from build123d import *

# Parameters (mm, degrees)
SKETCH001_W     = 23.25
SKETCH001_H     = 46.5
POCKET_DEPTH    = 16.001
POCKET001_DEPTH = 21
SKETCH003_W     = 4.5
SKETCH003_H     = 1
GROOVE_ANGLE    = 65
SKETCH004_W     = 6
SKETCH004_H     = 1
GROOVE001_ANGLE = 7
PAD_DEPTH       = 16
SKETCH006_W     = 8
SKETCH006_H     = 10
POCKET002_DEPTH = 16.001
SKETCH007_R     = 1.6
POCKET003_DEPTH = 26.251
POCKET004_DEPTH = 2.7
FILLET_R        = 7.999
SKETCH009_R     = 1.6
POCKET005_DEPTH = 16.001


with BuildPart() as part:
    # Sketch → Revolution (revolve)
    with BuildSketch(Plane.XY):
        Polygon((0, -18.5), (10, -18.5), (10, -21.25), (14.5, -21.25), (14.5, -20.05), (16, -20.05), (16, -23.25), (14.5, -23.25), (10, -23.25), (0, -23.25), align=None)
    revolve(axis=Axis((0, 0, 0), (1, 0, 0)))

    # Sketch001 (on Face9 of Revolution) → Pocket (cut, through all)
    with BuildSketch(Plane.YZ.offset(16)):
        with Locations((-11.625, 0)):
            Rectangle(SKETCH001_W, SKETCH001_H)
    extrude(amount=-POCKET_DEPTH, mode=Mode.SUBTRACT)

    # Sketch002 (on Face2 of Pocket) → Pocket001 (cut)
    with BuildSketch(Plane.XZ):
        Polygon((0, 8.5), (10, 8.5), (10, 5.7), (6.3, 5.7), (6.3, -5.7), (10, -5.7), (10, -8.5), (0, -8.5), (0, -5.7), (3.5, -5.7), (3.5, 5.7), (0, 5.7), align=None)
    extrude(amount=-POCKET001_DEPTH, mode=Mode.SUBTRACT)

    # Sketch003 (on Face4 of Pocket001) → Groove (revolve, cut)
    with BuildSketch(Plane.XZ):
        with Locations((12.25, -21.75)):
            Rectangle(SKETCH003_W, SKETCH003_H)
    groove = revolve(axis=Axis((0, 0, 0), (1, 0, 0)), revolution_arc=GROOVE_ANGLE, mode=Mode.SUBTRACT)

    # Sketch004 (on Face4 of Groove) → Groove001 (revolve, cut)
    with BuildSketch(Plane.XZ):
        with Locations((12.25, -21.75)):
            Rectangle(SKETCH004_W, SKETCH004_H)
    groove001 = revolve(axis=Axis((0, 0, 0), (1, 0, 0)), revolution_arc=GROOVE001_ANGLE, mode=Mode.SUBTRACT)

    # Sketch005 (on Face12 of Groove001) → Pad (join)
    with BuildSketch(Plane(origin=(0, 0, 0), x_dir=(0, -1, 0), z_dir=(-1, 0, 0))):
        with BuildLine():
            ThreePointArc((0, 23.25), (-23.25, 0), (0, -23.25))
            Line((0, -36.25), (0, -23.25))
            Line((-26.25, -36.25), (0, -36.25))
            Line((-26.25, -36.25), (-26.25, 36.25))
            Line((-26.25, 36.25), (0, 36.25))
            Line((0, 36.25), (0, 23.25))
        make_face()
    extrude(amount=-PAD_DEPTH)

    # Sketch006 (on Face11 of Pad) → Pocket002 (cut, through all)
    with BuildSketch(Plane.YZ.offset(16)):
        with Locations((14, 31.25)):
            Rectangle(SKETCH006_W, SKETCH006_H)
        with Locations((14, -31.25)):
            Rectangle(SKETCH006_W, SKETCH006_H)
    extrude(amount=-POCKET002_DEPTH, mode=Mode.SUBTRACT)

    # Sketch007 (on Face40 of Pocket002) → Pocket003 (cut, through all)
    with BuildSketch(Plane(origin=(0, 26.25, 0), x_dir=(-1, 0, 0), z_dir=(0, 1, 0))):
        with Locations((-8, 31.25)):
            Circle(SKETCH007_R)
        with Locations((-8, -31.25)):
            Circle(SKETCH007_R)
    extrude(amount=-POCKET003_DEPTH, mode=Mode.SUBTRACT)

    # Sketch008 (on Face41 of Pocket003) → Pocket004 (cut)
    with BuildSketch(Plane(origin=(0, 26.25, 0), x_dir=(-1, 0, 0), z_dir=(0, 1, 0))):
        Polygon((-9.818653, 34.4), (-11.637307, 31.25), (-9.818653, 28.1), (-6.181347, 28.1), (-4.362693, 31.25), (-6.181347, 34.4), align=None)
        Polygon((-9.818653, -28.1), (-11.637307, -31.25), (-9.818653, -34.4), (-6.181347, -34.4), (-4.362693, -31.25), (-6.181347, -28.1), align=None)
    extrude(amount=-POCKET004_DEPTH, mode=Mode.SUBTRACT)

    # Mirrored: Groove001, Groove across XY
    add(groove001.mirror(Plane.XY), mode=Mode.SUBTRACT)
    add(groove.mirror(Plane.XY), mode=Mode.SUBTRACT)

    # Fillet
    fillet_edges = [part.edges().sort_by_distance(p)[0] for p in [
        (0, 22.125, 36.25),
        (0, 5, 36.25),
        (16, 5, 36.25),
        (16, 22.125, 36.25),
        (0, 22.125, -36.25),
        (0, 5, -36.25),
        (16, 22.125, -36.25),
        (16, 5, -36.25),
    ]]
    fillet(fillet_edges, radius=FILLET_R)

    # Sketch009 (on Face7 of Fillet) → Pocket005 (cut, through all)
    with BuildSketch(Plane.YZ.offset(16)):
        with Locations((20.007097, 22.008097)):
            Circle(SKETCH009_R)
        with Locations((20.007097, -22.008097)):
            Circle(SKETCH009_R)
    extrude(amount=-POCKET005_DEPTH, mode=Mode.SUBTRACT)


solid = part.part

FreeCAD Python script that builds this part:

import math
import FreeCAD as App
import Part
import Sketcher
Q = App.Units.Quantity


def edges_at(feature, points):
    """Names of the edges that pass closest to the given points."""
    edges = feature.Shape.Edges
    near = lambda p: min(range(len(edges)), key=lambda i: edges[i].distToShape(Part.Vertex(*p))[0])
    return sorted({f"Edge{near(p) + 1}" for p in points})

doc = App.newDocument("Part")
body = doc.addObject("PartDesign::Body", "Body")

sketch1 = body.newObject("Sketcher::SketchObject", "Sketch")
sketch1.AttachmentSupport = (doc.getObject("XY_Plane"), [""])
sketch1.MapMode = "FlatFace"
sketch1.addGeometry([
    Part.LineSegment(App.Vector(10, -18.5, 0), App.Vector(0, -18.5, 0)),
    Part.LineSegment(App.Vector(0, -18.5, 0), App.Vector(0, -23.2, 0)),
    Part.LineSegment(App.Vector(0, -23.2, 0), App.Vector(16, -23.2, 0)),
    Part.LineSegment(App.Vector(16, -23.2, 0), App.Vector(16, -20.1, 0)),
    Part.LineSegment(App.Vector(16, -20.1, 0), App.Vector(14.5, -20.1, 0)),
    Part.LineSegment(App.Vector(14.5, -20.1, 0), App.Vector(14.5, -21.2, 0)),
    Part.LineSegment(App.Vector(14.5, -21.2, 0), App.Vector(10, -21.2, 0)),
    Part.LineSegment(App.Vector(10, -21.2, 0), App.Vector(10, -18.5, 0)),
], False)
sketch1.addConstraint([
    Sketcher.Constraint("Coincident", 0, 2, 1, 1),
    Sketcher.Constraint("Coincident", 1, 2, 2, 1),
    Sketcher.Constraint("Coincident", 2, 2, 3, 1),
    Sketcher.Constraint("Coincident", 3, 2, 4, 1),
    Sketcher.Constraint("Coincident", 4, 2, 5, 1),
    Sketcher.Constraint("Coincident", 5, 2, 6, 1),
    Sketcher.Constraint("Coincident", 6, 2, 7, 1),
    Sketcher.Constraint("Coincident", 7, 2, 0, 1),
    Sketcher.Constraint("Horizontal", 0),
    Sketcher.Constraint("Vertical", 1),
    Sketcher.Constraint("Horizontal", 2),
    Sketcher.Constraint("Vertical", 3),
    Sketcher.Constraint("Horizontal", 4),
    Sketcher.Constraint("Vertical", 5),
    Sketcher.Constraint("Horizontal", 6),
    Sketcher.Constraint("Vertical", 7),
    Sketcher.Constraint("PointOnObject", 0, 2, -2),
    Sketcher.Constraint("DistanceX", 0, 2, 0, 1, Q("10 mm")),
    Sketcher.Constraint("DistanceX", 2, 1, 2, 2, Q("16 mm")),
    Sketcher.Constraint("DistanceX", 4, 2, 4, 1, Q("1.5 mm")),
    Sketcher.Constraint("DistanceY", 3, 1, 3, 2, Q("3.2 mm")),
    Sketcher.Constraint("DistanceY", 5, 2, 5, 1, Q("1.2 mm")),
    Sketcher.Constraint("DistanceY", 1, 2, 1, 1, Q("4.75 mm")),
    Sketcher.Constraint("DistanceY", 0, 2, -1, 1, Q("18.5 mm")),
])
revolution = body.newObject("PartDesign::Revolution", "Revolution")
revolution.Profile = sketch1
revolution.ReferenceAxis = (sketch1, ["H_Axis"])
revolution.Angle = 360

sketch2 = body.newObject("Sketcher::SketchObject", "Sketch001")
sketch2.AttachmentSupport = (doc.getObject("YZ_Plane"), [""])
sketch2.MapMode = "FlatFace"
sketch2.AttachmentOffset = App.Placement(App.Vector(0, 0, 16), App.Rotation())
sketch2.addGeometry([
    Part.LineSegment(App.Vector(-23, 23, 0), App.Vector(-23, -23, 0)),
    Part.LineSegment(App.Vector(-23, -23, 0), App.Vector(0, -23, 0)),
    Part.LineSegment(App.Vector(0, -23, 0), App.Vector(0, 23, 0)),
    Part.LineSegment(App.Vector(0, 23, 0), App.Vector(-23, 23, 0)),
], False)
sketch2.addConstraint([
    Sketcher.Constraint("Coincident", 0, 2, 1, 1),
    Sketcher.Constraint("Coincident", 1, 2, 2, 1),
    Sketcher.Constraint("Coincident", 2, 2, 3, 1),
    Sketcher.Constraint("Coincident", 3, 2, 0, 1),
    Sketcher.Constraint("Vertical", 0),
    Sketcher.Constraint("Horizontal", 1),
    Sketcher.Constraint("Vertical", 2),
    Sketcher.Constraint("Horizontal", 3),
    Sketcher.Constraint("Symmetric", 1, 2, 2, 2, -1, 1),
    Sketcher.Constraint("DistanceY", 0, 2, 0, 1, Q("46.5 mm")),
    Sketcher.Constraint("DistanceX", 1, 1, 1, 2, Q("23.25 mm")),
])
pocket1 = body.newObject("PartDesign::Pocket", "Pocket")
pocket1.Profile = sketch2
pocket1.Type = "ThroughAll"

sketch3 = body.newObject("Sketcher::SketchObject", "Sketch002")
sketch3.AttachmentSupport = (doc.getObject("XZ_Plane"), [""])
sketch3.MapMode = "FlatFace"
sketch3.addGeometry([
    Part.LineSegment(App.Vector(10, 8.5, 0), App.Vector(0, 8.5, 0)),
    Part.LineSegment(App.Vector(0, 8.5, 0), App.Vector(0, 5.7, 0)),
    Part.LineSegment(App.Vector(0, 5.7, 0), App.Vector(3.5, 5.7, 0)),
    Part.LineSegment(App.Vector(3.5, 5.7, 0), App.Vector(3.5, -5.7, 0)),
    Part.LineSegment(App.Vector(3.5, -5.7, 0), App.Vector(0, -5.7, 0)),
    Part.LineSegment(App.Vector(0, -5.7, 0), App.Vector(0, -8.5, 0)),
    Part.LineSegment(App.Vector(0, -8.5, 0), App.Vector(10, -8.5, 0)),
    Part.LineSegment(App.Vector(10, -8.5, 0), App.Vector(10, -5.7, 0)),
    Part.LineSegment(App.Vector(10, -5.7, 0), App.Vector(6.3, -5.7, 0)),
    Part.LineSegment(App.Vector(6.3, -5.7, 0), App.Vector(6.3, 5.7, 0)),
    Part.LineSegment(App.Vector(6.3, 5.7, 0), App.Vector(10, 5.7, 0)),
    Part.LineSegment(App.Vector(10, 5.7, 0), App.Vector(10, 8.5, 0)),
], False)
sketch3.addConstraint([
    Sketcher.Constraint("Coincident", 0, 2, 1, 1),
    Sketcher.Constraint("Coincident", 1, 2, 2, 1),
    Sketcher.Constraint("Coincident", 2, 2, 3, 1),
    Sketcher.Constraint("Coincident", 3, 2, 4, 1),
    Sketcher.Constraint("Coincident", 4, 2, 5, 1),
    Sketcher.Constraint("Coincident", 5, 2, 6, 1),
    Sketcher.Constraint("Coincident", 6, 2, 7, 1),
    Sketcher.Constraint("Coincident", 7, 2, 8, 1),
    Sketcher.Constraint("Coincident", 8, 2, 9, 1),
    Sketcher.Constraint("Coincident", 9, 2, 10, 1),
    Sketcher.Constraint("Coincident", 10, 2, 11, 1),
    Sketcher.Constraint("Coincident", 11, 2, 0, 1),
    Sketcher.Constraint("Horizontal", 0),
    Sketcher.Constraint("Vertical", 1),
    Sketcher.Constraint("Horizontal", 2),
    Sketcher.Constraint("Vertical", 3),
    Sketcher.Constraint("Horizontal", 4),
    Sketcher.Constraint("Vertical", 5),
    Sketcher.Constraint("Horizontal", 6),
    Sketcher.Constraint("Vertical", 7),
    Sketcher.Constraint("Horizontal", 8),
    Sketcher.Constraint("Vertical", 9),
    Sketcher.Constraint("Horizontal", 10),
    Sketcher.Constraint("Vertical", 11),
    Sketcher.Constraint("Symmetric", 1, 2, 4, 2, -1, 1),
    Sketcher.Constraint("Symmetric", 0, 2, 5, 2, -1),
    Sketcher.Constraint("Symmetric", 7, 2, 10, 2, -1),
    Sketcher.Constraint("Horizontal", 4, 2, 7, 2),
    Sketcher.Constraint("DistanceX", 0, 2, 0, 1, Q("10 mm")),
    Sketcher.Constraint("DistanceX", 2, 1, 2, 2, Q("3.5 mm")),
    Sketcher.Constraint("DistanceX", 8, 2, 8, 1, Q("3.7 mm")),
    Sketcher.Constraint("DistanceY", 1, 2, 1, 1, Q("2.8 mm")),
    Sketcher.Constraint("DistanceY", 3, 2, 3, 1, Q("11.4 mm")),
])
pocket2 = body.newObject("PartDesign::Pocket", "Pocket001")
pocket2.Profile = sketch3
pocket2.Length = 21

sketch4 = body.newObject("Sketcher::SketchObject", "Sketch003")
sketch4.AttachmentSupport = (doc.getObject("XZ_Plane"), [""])
sketch4.MapMode = "FlatFace"
sketch4.addGeometry([
    Part.LineSegment(App.Vector(10, -21.2, 0), App.Vector(10, -22.2, 0)),
    Part.LineSegment(App.Vector(10, -22.2, 0), App.Vector(14.5, -22.2, 0)),
    Part.LineSegment(App.Vector(14.5, -22.2, 0), App.Vector(14.5, -21.2, 0)),
    Part.LineSegment(App.Vector(14.5, -21.2, 0), App.Vector(10, -21.2, 0)),
], False)
sketch4.addConstraint([
    Sketcher.Constraint("Coincident", 0, 2, 1, 1),
    Sketcher.Constraint("Coincident", 1, 2, 2, 1),
    Sketcher.Constraint("Coincident", 2, 2, 3, 1),
    Sketcher.Constraint("Coincident", 3, 2, 0, 1),
    Sketcher.Constraint("Vertical", 0),
    Sketcher.Constraint("Horizontal", 1),
    Sketcher.Constraint("Vertical", 2),
    Sketcher.Constraint("Horizontal", 3),
    Sketcher.Constraint("DistanceY", 0, 2, 0, 1, Q("1 mm")),
    Sketcher.Constraint("DistanceX", 1, 1, 1, 2, Q("4.5 mm")),
    Sketcher.Constraint("DistanceX", -1, 1, 0, 2, Q("10 mm")),
    Sketcher.Constraint("DistanceY", 0, 2, -1, 1, Q("22.25 mm")),
])
groove = body.newObject("PartDesign::Groove", "Groove")
groove.Profile = sketch4
groove.ReferenceAxis = (sketch4, ["H_Axis"])
groove.Angle = 65

sketch5 = body.newObject("Sketcher::SketchObject", "Sketch004")
sketch5.AttachmentSupport = (doc.getObject("XZ_Plane"), [""])
sketch5.MapMode = "FlatFace"
sketch5.addGeometry([
    Part.LineSegment(App.Vector(9.2, -21.2, 0), App.Vector(9.2, -22.2, 0)),
    Part.LineSegment(App.Vector(9.2, -22.2, 0), App.Vector(15.2, -22.2, 0)),
    Part.LineSegment(App.Vector(15.2, -22.2, 0), App.Vector(15.2, -21.2, 0)),
    Part.LineSegment(App.Vector(15.2, -21.2, 0), App.Vector(9.2, -21.2, 0)),
], False)
sketch5.addConstraint([
    Sketcher.Constraint("Coincident", 0, 2, 1, 1),
    Sketcher.Constraint("Coincident", 1, 2, 2, 1),
    Sketcher.Constraint("Coincident", 2, 2, 3, 1),
    Sketcher.Constraint("Coincident", 3, 2, 0, 1),
    Sketcher.Constraint("Vertical", 0),
    Sketcher.Constraint("Horizontal", 1),
    Sketcher.Constraint("Vertical", 2),
    Sketcher.Constraint("Horizontal", 3),
    Sketcher.Constraint("DistanceX", 1, 1, 1, 2, Q("6 mm")),
    Sketcher.Constraint("DistanceY", 0, 2, 0, 1, Q("1 mm")),
    Sketcher.Constraint("DistanceX", -1, 1, 0, 2, Q("9.25 mm")),
    Sketcher.Constraint("DistanceY", 0, 2, -1, 1, Q("22.25 mm")),
])
groove2 = body.newObject("PartDesign::Groove", "Groove001")
groove2.Profile = sketch5
groove2.ReferenceAxis = (sketch5, ["H_Axis"])
groove2.Angle = 7

sketch6 = body.newObject("Sketcher::SketchObject", "Sketch005")
sketch6.AttachmentSupport = (doc.getObject("YZ_Plane"), [""])
sketch6.MapMode = "FlatFace"
sketch6.addGeometry([
    Part.ArcOfCircle(Part.Circle(App.Vector(0, 0, 0), App.Vector(0, 0, 1), 23), math.radians(-90), math.radians(90)),
    Part.LineSegment(App.Vector(0, 23, 0), App.Vector(0, 36, 0)),
    Part.LineSegment(App.Vector(0, 36, 0), App.Vector(26, 36, 0)),
    Part.LineSegment(App.Vector(26, 36, 0), App.Vector(26, -36, 0)),
    Part.LineSegment(App.Vector(26, -36, 0), App.Vector(0, -36, 0)),
    Part.LineSegment(App.Vector(0, -36, 0), App.Vector(0, -23, 0)),
], False)
sketch6.addConstraint([
    Sketcher.Constraint("Coincident", 0, 2, 1, 1),
    Sketcher.Constraint("Coincident", 1, 2, 2, 1),
    Sketcher.Constraint("Coincident", 2, 2, 3, 1),
    Sketcher.Constraint("Coincident", 3, 2, 4, 1),
    Sketcher.Constraint("Coincident", 4, 2, 5, 1),
    Sketcher.Constraint("Coincident", 5, 2, 0, 1),
    Sketcher.Constraint("Vertical", 1),
    Sketcher.Constraint("Horizontal", 2),
    Sketcher.Constraint("Vertical", 3),
    Sketcher.Constraint("Horizontal", 4),
    Sketcher.Constraint("Vertical", 5),
    Sketcher.Constraint("Coincident", 0, 3, -1, 1),
    Sketcher.Constraint("Symmetric", 1, 2, 4, 2, -1, 1),
    Sketcher.Constraint("PointOnObject", 0, 2, -2),
    Sketcher.Constraint("DistanceY", 1, 1, 1, 2, Q("13 mm")),
    Sketcher.Constraint("Radius", 0, Q("23.25 mm")),
    Sketcher.Constraint("DistanceX", 2, 1, 2, 2, Q("26.25 mm")),
])
pad1 = body.newObject("PartDesign::Pad", "Pad")
pad1.Profile = sketch6
pad1.Length = 16

sketch7 = body.newObject("Sketcher::SketchObject", "Sketch006")
sketch7.AttachmentSupport = (doc.getObject("YZ_Plane"), [""])
sketch7.MapMode = "FlatFace"
sketch7.AttachmentOffset = App.Placement(App.Vector(0, 0, 16), App.Rotation())
sketch7.addGeometry([
    Part.LineSegment(App.Vector(10, 36, 0), App.Vector(10, 26, 0)),
    Part.LineSegment(App.Vector(10, 26, 0), App.Vector(18, 26, 0)),
    Part.LineSegment(App.Vector(18, 26, 0), App.Vector(18, 36, 0)),
    Part.LineSegment(App.Vector(18, 36, 0), App.Vector(10, 36, 0)),
    Part.LineSegment(App.Vector(10, -26, 0), App.Vector(10, -36, 0)),
    Part.LineSegment(App.Vector(10, -36, 0), App.Vector(18, -36, 0)),
    Part.LineSegment(App.Vector(18, -36, 0), App.Vector(18, -26, 0)),
    Part.LineSegment(App.Vector(18, -26, 0), App.Vector(10, -26, 0)),
], False)
sketch7.addConstraint([
    Sketcher.Constraint("Coincident", 0, 2, 1, 1),
    Sketcher.Constraint("Coincident", 1, 2, 2, 1),
    Sketcher.Constraint("Coincident", 2, 2, 3, 1),
    Sketcher.Constraint("Coincident", 3, 2, 0, 1),
    Sketcher.Constraint("Coincident", 4, 2, 5, 1),
    Sketcher.Constraint("Coincident", 5, 2, 6, 1),
    Sketcher.Constraint("Coincident", 6, 2, 7, 1),
    Sketcher.Constraint("Coincident", 7, 2, 4, 1),
    Sketcher.Constraint("Vertical", 0),
    Sketcher.Constraint("Horizontal", 1),
    Sketcher.Constraint("Vertical", 2),
    Sketcher.Constraint("Horizontal", 3),
    Sketcher.Constraint("Vertical", 4),
    Sketcher.Constraint("Horizontal", 5),
    Sketcher.Constraint("Vertical", 6),
    Sketcher.Constraint("Horizontal", 7),
    Sketcher.Constraint("Symmetric", 3, 2, 4, 2, -1),
    Sketcher.Constraint("Symmetric", 1, 2, 6, 2, -1),
    Sketcher.Constraint("DistanceX", 1, 1, 1, 2, Q("8 mm")),
    Sketcher.Constraint("DistanceY", 0, 2, 0, 1, Q("10 mm")),
    Sketcher.Constraint("DistanceX", -1, 1, 0, 2, Q("10 mm")),
    Sketcher.Constraint("DistanceY", 4, 2, 0, 2, Q("62.5 mm")),
])
pocket3 = body.newObject("PartDesign::Pocket", "Pocket002")
pocket3.Profile = sketch7
pocket3.Type = "ThroughAll"

sketch8 = body.newObject("Sketcher::SketchObject", "Sketch007")
sketch8.AttachmentSupport = (doc.getObject("XZ_Plane"), [""])
sketch8.MapMode = "FlatFace"
sketch8.AttachmentOffset = App.Placement(App.Vector(0, 0, -26.25), App.Rotation())
sketch8.addGeometry([
    Part.Circle(App.Vector(8, 31.2, 0), App.Vector(0, 0, 1), 1.6),
    Part.Circle(App.Vector(8, -31.2, 0), App.Vector(0, 0, 1), 1.6),
], False)
sketch8.addConstraint([
    Sketcher.Constraint("Equal", 0, 1),
    Sketcher.Constraint("Symmetric", 0, 3, 1, 3, -1),
    Sketcher.Constraint("Diameter", 0, Q("3.2 mm")),
    Sketcher.Constraint("DistanceX", -1, 1, 0, 3, Q("8 mm")),
    Sketcher.Constraint("DistanceY", 1, 3, 0, 3, Q("62.5 mm")),
])
pocket4 = body.newObject("PartDesign::Pocket", "Pocket003")
pocket4.Profile = sketch8
pocket4.Type = "ThroughAll"
pocket4.Reversed = True

sketch9 = body.newObject("Sketcher::SketchObject", "Sketch008")
sketch9.AttachmentSupport = (doc.getObject("XZ_Plane"), [""])
sketch9.MapMode = "FlatFace"
sketch9.AttachmentOffset = App.Placement(App.Vector(0, 0, -26.25), App.Rotation())
sketch9.addGeometry([
    Part.LineSegment(App.Vector(9.8, 34.4, 0), App.Vector(11.6, 31.2, 0)),
    Part.LineSegment(App.Vector(11.6, 31.2, 0), App.Vector(9.8, 28.1, 0)),
    Part.LineSegment(App.Vector(9.8, 28.1, 0), App.Vector(6.2, 28.1, 0)),
    Part.LineSegment(App.Vector(6.2, 28.1, 0), App.Vector(4.4, 31.2, 0)),
    Part.LineSegment(App.Vector(4.4, 31.2, 0), App.Vector(6.2, 34.4, 0)),
    Part.LineSegment(App.Vector(6.2, 34.4, 0), App.Vector(9.8, 34.4, 0)),
    Part.LineSegment(App.Vector(9.8, -28.1, 0), App.Vector(11.6, -31.2, 0)),
    Part.LineSegment(App.Vector(11.6, -31.2, 0), App.Vector(9.8, -34.4, 0)),
    Part.LineSegment(App.Vector(9.8, -34.4, 0), App.Vector(6.2, -34.4, 0)),
    Part.LineSegment(App.Vector(6.2, -34.4, 0), App.Vector(4.4, -31.2, 0)),
    Part.LineSegment(App.Vector(4.4, -31.2, 0), App.Vector(6.2, -28.1, 0)),
    Part.LineSegment(App.Vector(6.2, -28.1, 0), App.Vector(9.8, -28.1, 0)),
], False)
sketch9.addConstraint([
    Sketcher.Constraint("Coincident", 0, 2, 1, 1),
    Sketcher.Constraint("Coincident", 1, 2, 2, 1),
    Sketcher.Constraint("Coincident", 2, 2, 3, 1),
    Sketcher.Constraint("Coincident", 3, 2, 4, 1),
    Sketcher.Constraint("Coincident", 4, 2, 5, 1),
    Sketcher.Constraint("Coincident", 5, 2, 0, 1),
    Sketcher.Constraint("Coincident", 6, 2, 7, 1),
    Sketcher.Constraint("Coincident", 7, 2, 8, 1),
    Sketcher.Constraint("Coincident", 8, 2, 9, 1),
    Sketcher.Constraint("Coincident", 9, 2, 10, 1),
    Sketcher.Constraint("Coincident", 10, 2, 11, 1),
    Sketcher.Constraint("Coincident", 11, 2, 6, 1),
    Sketcher.Constraint("Horizontal", 2),
    Sketcher.Constraint("Horizontal", 5),
    Sketcher.Constraint("Horizontal", 8),
    Sketcher.Constraint("Horizontal", 11),
    Sketcher.Constraint("Symmetric", 0, 2, 6, 2, -1),
    Sketcher.Constraint("Symmetric", 5, 2, 7, 2, -1),
    Sketcher.Constraint("Symmetric", 3, 2, 9, 2, -1),
    Sketcher.Constraint("Symmetric", 2, 2, 10, 2, -1),
    Sketcher.Constraint("Parallel", 0, 3),
    Sketcher.Constraint("Parallel", 1, 4),
    Sketcher.Constraint("Parallel", 3, 6),
    Sketcher.Constraint("Parallel", 4, 7),
    Sketcher.Constraint("Parallel", 6, 9),
    Sketcher.Constraint("Horizontal", 0, 2, 3, 2),
    Sketcher.Constraint("Vertical", 2, 2, 4, 2),
    Sketcher.Constraint("Angle", 0, Q("-59.999991 deg")),
    Sketcher.Constraint("DistanceY", -1, 1, 1, 2, Q("28.1 mm")),
    Sketcher.Constraint("DistanceY", -1, 1, 4, 2, Q("34.4 mm")),
    Sketcher.Constraint("DistanceX", 2, 2, 2, 1, Q("3.637306 mm")),
    Sketcher.Constraint("DistanceX", -1, 1, 0, 2, Q("11.637307 mm")),
])
pocket5 = body.newObject("PartDesign::Pocket", "Pocket004")
pocket5.Profile = sketch9
pocket5.Length = 2.7
pocket5.Reversed = True
doc.recompute()

mirrored = body.newObject("PartDesign::Mirrored", "Mirrored")
mirrored.Originals = [groove2, groove]
mirrored.MirrorPlane = (doc.getObject("XY_Plane"), [""])
body.Tip = mirrored
doc.recompute()

fillet = body.newObject("PartDesign::Fillet", "Fillet")
fillet.Base = (mirrored, edges_at(mirrored, [
    (0, 22.125, 36.25),
    (0, 5, 36.25),
    (16, 5, 36.25),
    (16, 22.125, 36.25),
    (0, 22.125, -36.25),
    (0, 5, -36.25),
    (16, 22.125, -36.25),
    (16, 5, -36.25),
]))
fillet.Radius = 7.999

sketch10 = body.newObject("Sketcher::SketchObject", "Sketch009")
sketch10.AttachmentSupport = (doc.getObject("YZ_Plane"), [""])
sketch10.MapMode = "FlatFace"
sketch10.AttachmentOffset = App.Placement(App.Vector(0, 0, 16), App.Rotation())
sketch10.addGeometry([
    Part.Circle(App.Vector(20, 22, 0), App.Vector(0, 0, 1), 1.6),
    Part.Circle(App.Vector(20, -22, 0), App.Vector(0, 0, 1), 1.6),
], False)
sketch10.addConstraint([
    Sketcher.Constraint("Equal", 0, 1),
    Sketcher.Constraint("Symmetric", 0, 3, 1, 3, -1),
    Sketcher.Constraint("Diameter", 0, Q("3.2 mm")),
    Sketcher.Constraint("DistanceX", -1, 1, 0, 3, Q("20.007097 mm")),
    Sketcher.Constraint("DistanceY", -1, 1, 0, 3, Q("22.008097 mm")),
])
pocket6 = body.newObject("PartDesign::Pocket", "Pocket005")
pocket6.Profile = sketch10
pocket6.Type = "ThroughAll"

doc.recompute()
